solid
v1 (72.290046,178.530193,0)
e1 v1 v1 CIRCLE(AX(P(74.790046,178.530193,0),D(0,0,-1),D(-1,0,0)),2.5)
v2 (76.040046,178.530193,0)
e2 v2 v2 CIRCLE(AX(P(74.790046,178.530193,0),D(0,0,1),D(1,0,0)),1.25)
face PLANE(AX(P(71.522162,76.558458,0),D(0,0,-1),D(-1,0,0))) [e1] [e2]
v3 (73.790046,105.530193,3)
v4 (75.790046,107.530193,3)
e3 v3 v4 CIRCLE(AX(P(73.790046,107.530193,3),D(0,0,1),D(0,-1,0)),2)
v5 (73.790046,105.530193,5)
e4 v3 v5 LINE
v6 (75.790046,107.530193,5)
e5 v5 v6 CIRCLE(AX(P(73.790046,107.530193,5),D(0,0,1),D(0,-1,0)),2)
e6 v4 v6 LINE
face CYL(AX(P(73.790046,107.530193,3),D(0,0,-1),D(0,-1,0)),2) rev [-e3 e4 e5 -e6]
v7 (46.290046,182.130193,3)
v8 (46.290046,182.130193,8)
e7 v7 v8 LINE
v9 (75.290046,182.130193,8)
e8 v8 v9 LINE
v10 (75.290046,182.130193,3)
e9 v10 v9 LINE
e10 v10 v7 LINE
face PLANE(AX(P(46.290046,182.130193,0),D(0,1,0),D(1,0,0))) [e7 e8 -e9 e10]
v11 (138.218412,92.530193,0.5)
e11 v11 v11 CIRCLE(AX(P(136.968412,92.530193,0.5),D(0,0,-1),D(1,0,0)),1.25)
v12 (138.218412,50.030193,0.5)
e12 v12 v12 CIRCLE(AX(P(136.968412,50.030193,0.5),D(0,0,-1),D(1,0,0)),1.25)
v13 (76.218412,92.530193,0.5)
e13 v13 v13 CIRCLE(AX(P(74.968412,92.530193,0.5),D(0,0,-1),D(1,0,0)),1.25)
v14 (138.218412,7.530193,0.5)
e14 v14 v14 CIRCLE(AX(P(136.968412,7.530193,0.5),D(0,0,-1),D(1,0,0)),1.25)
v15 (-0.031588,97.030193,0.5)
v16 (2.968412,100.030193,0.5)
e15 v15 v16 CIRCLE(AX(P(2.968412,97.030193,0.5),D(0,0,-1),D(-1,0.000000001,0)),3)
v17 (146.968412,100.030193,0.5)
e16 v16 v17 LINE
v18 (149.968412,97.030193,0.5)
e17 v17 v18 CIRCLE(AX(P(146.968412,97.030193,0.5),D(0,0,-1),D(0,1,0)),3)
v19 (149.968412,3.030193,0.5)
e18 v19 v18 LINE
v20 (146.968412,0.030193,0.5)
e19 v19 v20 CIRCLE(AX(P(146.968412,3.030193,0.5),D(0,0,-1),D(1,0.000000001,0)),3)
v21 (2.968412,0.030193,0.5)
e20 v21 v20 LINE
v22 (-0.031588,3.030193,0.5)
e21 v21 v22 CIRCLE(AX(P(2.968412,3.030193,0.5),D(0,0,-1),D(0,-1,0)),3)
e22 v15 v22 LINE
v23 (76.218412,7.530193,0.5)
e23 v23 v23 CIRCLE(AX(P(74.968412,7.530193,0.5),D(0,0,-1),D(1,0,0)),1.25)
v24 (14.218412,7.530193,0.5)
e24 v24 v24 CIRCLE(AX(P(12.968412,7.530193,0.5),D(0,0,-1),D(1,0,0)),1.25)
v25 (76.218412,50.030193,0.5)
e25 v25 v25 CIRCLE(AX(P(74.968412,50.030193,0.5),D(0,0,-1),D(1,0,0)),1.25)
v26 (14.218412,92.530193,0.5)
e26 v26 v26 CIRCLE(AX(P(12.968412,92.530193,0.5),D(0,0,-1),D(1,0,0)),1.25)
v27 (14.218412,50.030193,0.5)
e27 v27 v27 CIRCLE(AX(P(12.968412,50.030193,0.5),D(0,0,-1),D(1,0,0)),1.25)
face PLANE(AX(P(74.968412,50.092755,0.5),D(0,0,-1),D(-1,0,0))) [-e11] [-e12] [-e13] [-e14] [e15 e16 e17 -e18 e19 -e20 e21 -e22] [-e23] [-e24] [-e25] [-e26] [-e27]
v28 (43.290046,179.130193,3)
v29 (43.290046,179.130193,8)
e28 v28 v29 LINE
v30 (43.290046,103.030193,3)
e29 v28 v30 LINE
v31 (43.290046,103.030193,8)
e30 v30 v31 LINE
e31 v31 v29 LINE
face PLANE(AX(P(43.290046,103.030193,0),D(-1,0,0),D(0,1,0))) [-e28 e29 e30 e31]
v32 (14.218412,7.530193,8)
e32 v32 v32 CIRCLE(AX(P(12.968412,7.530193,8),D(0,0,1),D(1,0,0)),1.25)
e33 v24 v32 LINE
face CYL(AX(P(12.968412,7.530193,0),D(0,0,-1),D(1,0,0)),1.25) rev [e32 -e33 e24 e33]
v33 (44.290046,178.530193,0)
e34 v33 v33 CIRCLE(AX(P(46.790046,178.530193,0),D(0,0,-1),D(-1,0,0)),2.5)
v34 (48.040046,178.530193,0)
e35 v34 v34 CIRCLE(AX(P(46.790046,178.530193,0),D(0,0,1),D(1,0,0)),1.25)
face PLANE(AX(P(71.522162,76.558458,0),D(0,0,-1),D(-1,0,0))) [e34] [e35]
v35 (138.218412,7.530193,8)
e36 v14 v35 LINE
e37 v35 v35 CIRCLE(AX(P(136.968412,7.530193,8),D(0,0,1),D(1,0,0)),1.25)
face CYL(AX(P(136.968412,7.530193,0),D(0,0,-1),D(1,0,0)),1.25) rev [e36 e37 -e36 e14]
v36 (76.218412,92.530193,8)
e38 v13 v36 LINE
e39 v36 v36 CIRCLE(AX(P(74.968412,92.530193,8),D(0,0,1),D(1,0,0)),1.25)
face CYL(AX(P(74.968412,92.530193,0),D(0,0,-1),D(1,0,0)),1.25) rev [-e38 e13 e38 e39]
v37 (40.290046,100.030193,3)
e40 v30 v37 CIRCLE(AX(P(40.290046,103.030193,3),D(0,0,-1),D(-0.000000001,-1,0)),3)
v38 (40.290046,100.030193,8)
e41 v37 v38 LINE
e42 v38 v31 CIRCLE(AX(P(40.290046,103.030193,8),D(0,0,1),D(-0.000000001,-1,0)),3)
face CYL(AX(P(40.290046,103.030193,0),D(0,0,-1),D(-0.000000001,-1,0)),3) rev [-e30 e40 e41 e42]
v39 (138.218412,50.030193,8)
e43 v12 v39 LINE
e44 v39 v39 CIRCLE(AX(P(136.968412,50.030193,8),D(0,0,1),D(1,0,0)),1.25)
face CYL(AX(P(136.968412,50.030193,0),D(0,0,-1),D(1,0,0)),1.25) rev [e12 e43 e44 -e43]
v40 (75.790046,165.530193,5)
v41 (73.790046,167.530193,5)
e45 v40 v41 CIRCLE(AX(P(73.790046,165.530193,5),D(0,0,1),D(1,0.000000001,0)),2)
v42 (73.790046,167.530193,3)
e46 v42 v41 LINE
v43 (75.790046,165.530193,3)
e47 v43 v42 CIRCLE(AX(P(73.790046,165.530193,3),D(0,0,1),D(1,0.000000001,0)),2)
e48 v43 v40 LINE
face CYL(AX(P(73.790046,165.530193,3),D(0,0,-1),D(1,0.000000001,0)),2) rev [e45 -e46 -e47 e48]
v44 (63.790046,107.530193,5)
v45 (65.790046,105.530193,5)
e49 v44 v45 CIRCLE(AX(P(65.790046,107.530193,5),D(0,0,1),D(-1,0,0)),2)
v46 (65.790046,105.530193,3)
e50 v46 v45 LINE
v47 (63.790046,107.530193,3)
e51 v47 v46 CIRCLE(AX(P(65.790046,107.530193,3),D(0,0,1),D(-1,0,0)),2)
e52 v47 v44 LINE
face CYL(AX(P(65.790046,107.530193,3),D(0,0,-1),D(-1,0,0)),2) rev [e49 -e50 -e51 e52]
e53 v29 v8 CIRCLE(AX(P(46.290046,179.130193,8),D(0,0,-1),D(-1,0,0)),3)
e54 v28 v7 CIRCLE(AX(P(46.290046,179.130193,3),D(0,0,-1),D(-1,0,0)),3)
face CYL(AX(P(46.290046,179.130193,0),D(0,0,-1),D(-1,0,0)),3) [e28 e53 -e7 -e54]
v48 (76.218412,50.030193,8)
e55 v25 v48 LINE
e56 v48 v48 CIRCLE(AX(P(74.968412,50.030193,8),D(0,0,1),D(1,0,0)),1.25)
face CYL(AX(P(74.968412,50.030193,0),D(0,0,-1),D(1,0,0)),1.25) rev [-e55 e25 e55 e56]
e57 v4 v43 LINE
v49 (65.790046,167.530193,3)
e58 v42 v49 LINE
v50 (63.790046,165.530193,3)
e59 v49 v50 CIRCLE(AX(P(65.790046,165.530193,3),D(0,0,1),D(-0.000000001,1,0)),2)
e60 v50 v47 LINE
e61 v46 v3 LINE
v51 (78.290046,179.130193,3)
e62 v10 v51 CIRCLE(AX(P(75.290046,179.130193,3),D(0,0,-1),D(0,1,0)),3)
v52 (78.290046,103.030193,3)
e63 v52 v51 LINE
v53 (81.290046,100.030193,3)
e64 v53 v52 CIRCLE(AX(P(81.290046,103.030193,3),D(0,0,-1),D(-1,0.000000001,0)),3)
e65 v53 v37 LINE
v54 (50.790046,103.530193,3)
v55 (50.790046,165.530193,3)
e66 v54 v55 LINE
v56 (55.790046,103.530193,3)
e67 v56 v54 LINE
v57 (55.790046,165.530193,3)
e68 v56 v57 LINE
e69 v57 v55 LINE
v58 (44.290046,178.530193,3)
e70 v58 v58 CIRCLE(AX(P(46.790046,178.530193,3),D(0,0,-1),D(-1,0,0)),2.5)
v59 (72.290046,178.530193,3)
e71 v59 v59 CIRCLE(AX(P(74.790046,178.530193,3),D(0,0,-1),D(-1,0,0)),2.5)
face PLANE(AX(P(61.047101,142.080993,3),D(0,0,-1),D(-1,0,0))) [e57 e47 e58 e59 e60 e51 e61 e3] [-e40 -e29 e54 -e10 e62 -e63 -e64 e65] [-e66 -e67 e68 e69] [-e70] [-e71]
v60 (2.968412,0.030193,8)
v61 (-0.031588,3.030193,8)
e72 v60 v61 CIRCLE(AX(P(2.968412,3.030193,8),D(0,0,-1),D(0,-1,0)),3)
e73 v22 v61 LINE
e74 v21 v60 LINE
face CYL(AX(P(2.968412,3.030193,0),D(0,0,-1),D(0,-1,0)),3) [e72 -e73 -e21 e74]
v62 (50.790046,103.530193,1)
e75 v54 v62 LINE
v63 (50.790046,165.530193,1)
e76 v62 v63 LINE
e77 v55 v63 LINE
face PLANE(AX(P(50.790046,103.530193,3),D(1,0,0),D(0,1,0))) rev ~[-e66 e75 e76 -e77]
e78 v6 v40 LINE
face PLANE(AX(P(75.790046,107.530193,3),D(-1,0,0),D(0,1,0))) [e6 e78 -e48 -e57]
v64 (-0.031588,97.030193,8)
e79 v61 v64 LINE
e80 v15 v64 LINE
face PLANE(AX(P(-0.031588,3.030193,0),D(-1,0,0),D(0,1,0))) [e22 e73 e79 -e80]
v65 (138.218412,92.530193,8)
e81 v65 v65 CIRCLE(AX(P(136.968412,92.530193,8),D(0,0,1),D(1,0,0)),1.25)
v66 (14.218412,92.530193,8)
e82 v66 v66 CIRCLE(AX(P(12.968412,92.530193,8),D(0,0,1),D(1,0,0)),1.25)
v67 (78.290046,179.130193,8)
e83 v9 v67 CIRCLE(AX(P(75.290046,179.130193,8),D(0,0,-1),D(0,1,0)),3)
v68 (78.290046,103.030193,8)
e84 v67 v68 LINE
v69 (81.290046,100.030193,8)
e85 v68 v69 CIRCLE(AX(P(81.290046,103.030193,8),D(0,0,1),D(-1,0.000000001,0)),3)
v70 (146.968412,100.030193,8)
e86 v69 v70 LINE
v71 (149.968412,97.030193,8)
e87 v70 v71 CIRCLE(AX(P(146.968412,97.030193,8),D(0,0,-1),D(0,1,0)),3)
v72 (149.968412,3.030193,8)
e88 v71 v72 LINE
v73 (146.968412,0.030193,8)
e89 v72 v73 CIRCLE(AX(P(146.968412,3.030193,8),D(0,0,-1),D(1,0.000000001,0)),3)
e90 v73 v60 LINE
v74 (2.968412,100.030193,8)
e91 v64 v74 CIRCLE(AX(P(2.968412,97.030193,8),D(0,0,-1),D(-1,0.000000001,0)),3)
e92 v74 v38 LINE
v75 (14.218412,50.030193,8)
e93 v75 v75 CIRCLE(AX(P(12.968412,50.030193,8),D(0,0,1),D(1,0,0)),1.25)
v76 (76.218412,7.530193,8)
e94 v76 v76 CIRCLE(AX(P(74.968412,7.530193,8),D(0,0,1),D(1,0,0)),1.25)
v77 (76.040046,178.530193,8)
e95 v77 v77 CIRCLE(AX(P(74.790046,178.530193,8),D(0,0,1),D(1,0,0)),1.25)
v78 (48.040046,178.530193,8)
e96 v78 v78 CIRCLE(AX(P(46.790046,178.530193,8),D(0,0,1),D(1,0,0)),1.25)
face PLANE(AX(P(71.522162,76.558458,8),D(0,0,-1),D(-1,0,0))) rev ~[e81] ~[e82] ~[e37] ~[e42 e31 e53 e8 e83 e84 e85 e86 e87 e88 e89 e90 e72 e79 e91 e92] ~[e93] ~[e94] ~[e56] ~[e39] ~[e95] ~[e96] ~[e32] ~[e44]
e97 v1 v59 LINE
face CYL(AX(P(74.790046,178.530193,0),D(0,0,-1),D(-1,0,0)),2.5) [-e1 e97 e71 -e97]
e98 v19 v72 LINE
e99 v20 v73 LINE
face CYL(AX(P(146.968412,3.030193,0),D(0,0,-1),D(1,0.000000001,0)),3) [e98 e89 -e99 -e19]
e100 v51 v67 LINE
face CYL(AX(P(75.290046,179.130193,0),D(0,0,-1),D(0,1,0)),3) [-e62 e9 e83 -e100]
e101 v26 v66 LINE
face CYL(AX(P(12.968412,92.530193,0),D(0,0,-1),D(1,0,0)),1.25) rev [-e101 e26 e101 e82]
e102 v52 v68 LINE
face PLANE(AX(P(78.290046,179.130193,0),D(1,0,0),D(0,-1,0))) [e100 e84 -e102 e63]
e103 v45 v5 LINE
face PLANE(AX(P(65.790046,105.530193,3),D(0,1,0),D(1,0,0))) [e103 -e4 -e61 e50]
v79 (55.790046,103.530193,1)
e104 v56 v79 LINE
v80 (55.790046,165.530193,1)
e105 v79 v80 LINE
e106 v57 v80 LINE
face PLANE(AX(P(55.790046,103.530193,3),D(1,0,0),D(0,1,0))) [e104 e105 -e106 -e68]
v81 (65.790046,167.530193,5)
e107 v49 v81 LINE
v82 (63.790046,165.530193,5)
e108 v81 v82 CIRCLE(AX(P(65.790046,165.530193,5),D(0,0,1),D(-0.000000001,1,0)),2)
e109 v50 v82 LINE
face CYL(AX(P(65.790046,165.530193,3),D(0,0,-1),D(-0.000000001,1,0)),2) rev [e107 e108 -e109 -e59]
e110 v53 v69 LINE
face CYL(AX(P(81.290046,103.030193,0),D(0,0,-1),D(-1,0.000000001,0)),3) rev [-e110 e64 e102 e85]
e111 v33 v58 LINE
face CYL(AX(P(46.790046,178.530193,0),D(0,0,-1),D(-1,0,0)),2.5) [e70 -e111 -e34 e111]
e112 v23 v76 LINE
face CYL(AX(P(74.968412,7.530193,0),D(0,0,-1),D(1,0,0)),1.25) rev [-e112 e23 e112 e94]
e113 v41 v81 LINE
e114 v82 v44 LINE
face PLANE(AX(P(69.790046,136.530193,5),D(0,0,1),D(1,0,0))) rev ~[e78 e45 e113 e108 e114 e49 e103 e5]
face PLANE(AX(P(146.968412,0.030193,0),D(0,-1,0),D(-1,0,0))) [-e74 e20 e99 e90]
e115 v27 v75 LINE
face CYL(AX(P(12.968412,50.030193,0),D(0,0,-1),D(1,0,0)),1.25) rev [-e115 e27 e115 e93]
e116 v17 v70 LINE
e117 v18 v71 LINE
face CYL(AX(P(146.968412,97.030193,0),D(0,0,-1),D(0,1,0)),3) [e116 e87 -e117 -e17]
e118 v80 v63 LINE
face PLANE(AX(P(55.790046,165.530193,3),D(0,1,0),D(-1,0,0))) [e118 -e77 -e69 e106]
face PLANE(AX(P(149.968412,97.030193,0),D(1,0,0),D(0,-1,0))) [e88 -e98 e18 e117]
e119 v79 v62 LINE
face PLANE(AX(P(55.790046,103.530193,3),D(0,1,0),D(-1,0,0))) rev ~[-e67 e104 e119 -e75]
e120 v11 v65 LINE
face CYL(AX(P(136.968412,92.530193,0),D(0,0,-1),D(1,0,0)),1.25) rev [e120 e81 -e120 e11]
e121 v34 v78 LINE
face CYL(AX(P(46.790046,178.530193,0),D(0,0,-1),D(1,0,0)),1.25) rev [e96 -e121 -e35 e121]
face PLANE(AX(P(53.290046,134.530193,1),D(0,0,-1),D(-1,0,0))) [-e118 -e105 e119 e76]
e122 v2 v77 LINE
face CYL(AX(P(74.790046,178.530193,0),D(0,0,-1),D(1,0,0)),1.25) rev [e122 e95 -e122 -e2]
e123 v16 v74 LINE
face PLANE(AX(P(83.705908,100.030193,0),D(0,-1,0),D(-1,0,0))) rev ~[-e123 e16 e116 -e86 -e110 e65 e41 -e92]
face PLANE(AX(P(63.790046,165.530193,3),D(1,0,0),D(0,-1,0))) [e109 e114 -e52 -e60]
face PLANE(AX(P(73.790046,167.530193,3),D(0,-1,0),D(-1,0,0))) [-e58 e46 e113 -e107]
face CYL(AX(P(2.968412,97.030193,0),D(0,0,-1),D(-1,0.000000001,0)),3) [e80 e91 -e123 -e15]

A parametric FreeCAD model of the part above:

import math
import FreeCAD as App
import Part
import Sketcher
from FreeCAD import Vector


def add_polygon(sketch, points):
    """Adds a closed chain of lines whose ends are joined by coincident constraints."""
    first, n = sketch.GeometryCount, len(points)
    for a, b in zip(points, points[1:] + points[:1]):
        sketch.addGeometry(Part.LineSegment(App.Vector(*a, 0), App.Vector(*b, 0)), False)
    for i in range(n):
        sketch.addConstraint(Sketcher.Constraint("Coincident", first + i, 2, first + (i + 1) % n, 1))

doc = App.newDocument("Part")
body = doc.addObject("PartDesign::Body", "Body")

sketch1 = body.newObject("Sketcher::SketchObject", "Sketch")
sketch1.AttachmentSupport = (doc.getObject("XY_Plane"), [""])
sketch1.MapMode = "FlatFace"
sketch1.addGeometry([
    Part.LineSegment(Vector(43.3, 179.1, 0), Vector(43.3, 103, 0)),
    Part.ArcOfCircle(Part.Circle(Vector(40.3, 103, 0), Vector(0, 0, 1), 3), math.radians(-90), math.radians(0)),
    Part.LineSegment(Vector(40.3, 100, 0), Vector(3, 100, 0)),
    Part.ArcOfCircle(Part.Circle(Vector(3, 97, 0), Vector(0, 0, 1), 3), math.radians(90), math.radians(180)),
    Part.LineSegment(Vector(0, 97, 0), Vector(0, 3, 0)),
    Part.ArcOfCircle(Part.Circle(Vector(3, 3, 0), Vector(0, 0, 1), 3), math.radians(180), math.radians(270)),
    Part.LineSegment(Vector(3, 0, 0), Vector(147, 0, 0)),
    Part.ArcOfCircle(Part.Circle(Vector(147, 3, 0), Vector(0, 0, 1), 3), math.radians(-90), math.radians(0)),
    Part.LineSegment(Vector(150, 3, 0), Vector(150, 97, 0)),
    Part.ArcOfCircle(Part.Circle(Vector(147, 97, 0), Vector(0, 0, 1), 3), math.radians(0), math.radians(90)),
    Part.LineSegment(Vector(147, 100, 0), Vector(81.3, 100, 0)),
    Part.ArcOfCircle(Part.Circle(Vector(81.3, 103, 0), Vector(0, 0, 1), 3), math.radians(180), math.radians(270)),
    Part.LineSegment(Vector(78.3, 103, 0), Vector(78.3, 179.1, 0)),
    Part.ArcOfCircle(Part.Circle(Vector(75.3, 179.1, 0), Vector(0, 0, 1), 3), math.radians(0), math.radians(90)),
    Part.LineSegment(Vector(75.3, 182.1, 0), Vector(46.3, 182.1, 0)),
    Part.ArcOfCircle(Part.Circle(Vector(46.3, 179.1, 0), Vector(0, 0, 1), 3), math.radians(90), math.radians(180)),
    Part.Circle(Vector(137, 7.5, 0), Vector(0, 0, 1), 1.2),
    Part.Circle(Vector(75, 7.5, 0), Vector(0, 0, 1), 1.2),
    Part.Circle(Vector(137, 50, 0), Vector(0, 0, 1), 1.2),
    Part.Circle(Vector(137, 92.5, 0), Vector(0, 0, 1), 1.2),
    Part.Circle(Vector(75, 50, 0), Vector(0, 0, 1), 1.2),
    Part.Circle(Vector(75, 92.5, 0), Vector(0, 0, 1), 1.2),
    Part.Circle(Vector(13, 7.5, 0), Vector(0, 0, 1), 1.2),
    Part.Circle(Vector(13, 50, 0), Vector(0, 0, 1), 1.2),
    Part.Circle(Vector(13, 92.5, 0), Vector(0, 0, 1), 1.2),
    Part.Circle(Vector(74.8, 178.5, 0), Vector(0, 0, 1), 1.2),
    Part.Circle(Vector(46.8, 178.5, 0), Vector(0, 0, 1), 1.2),
], False)
sketch1.addConstraint([
    Sketcher.Constraint("Tangent", 0, 2, 1, 2),
    Sketcher.Constraint("Tangent", 1, 1, 2, 1),
    Sketcher.Constraint("Tangent", 2, 2, 3, 1),
    Sketcher.Constraint("Tangent", 3, 2, 4, 1),
    Sketcher.Constraint("Tangent", 4, 2, 5, 1),
    Sketcher.Constraint("Tangent", 5, 2, 6, 1),
    Sketcher.Constraint("Tangent", 6, 2, 7, 1),
    Sketcher.Constraint("Tangent", 7, 2, 8, 1),
    Sketcher.Constraint("Tangent", 8, 2, 9, 1),
    Sketcher.Constraint("Tangent", 9, 2, 10, 1),
    Sketcher.Constraint("Tangent", 10, 2, 11, 2),
    Sketcher.Constraint("Tangent", 11, 1, 12, 1),
    Sketcher.Constraint("Tangent", 12, 2, 13, 1),
    Sketcher.Constraint("Tangent", 13, 2, 14, 1),
    Sketcher.Constraint("Tangent", 14, 2, 15, 1),
    Sketcher.Constraint("Tangent", 15, 2, 0, 1),
    Sketcher.Constraint("Vertical", 0),
    Sketcher.Constraint("Horizontal", 2),
    Sketcher.Constraint("Vertical", 4),
    Sketcher.Constraint("Horizontal", 6),
    Sketcher.Constraint("Vertical", 8),
    Sketcher.Constraint("Horizontal", 10),
    Sketcher.Constraint("Vertical", 12),
    Sketcher.Constraint("Horizontal", 14),
    Sketcher.Constraint("Equal", 1, 3),
    Sketcher.Constraint("Equal", 3, 5),
    Sketcher.Constraint("Equal", 5, 7),
    Sketcher.Constraint("Equal", 7, 9),
    Sketcher.Constraint("Equal", 9, 11),
    Sketcher.Constraint("Equal", 11, 13),
    Sketcher.Constraint("Equal", 13, 15),
    Sketcher.Constraint("Equal", 16, 17),
    Sketcher.Constraint("Equal", 17, 18),
    Sketcher.Constraint("Equal", 18, 19),
    Sketcher.Constraint("Equal", 19, 20),
    Sketcher.Constraint("Equal", 20, 21),
    Sketcher.Constraint("Equal", 21, 22),
    Sketcher.Constraint("Equal", 22, 23),
    Sketcher.Constraint("Equal", 23, 24),
    Sketcher.Constraint("Equal", 24, 25),
    Sketcher.Constraint("Equal", 25, 26),
    Sketcher.Constraint("Horizontal", 3, 3, 9, 3),
    Sketcher.Constraint("Horizontal", 16, 3, 17, 3),
    Sketcher.Constraint("Horizontal", 18, 3, 20, 3),
    Sketcher.Constraint("Horizontal", 19, 3, 21, 3),
    Sketcher.Constraint("Horizontal", 17, 3, 22, 3),
    Sketcher.Constraint("Horizontal", 20, 3, 23, 3),
    Sketcher.Constraint("Horizontal", 21, 3, 24, 3),
    Sketcher.Constraint("Horizontal", 25, 3, 26, 3),
    Sketcher.Constraint("Vertical", 16, 3, 18, 3),
    Sketcher.Constraint("Vertical", 18, 3, 19, 3),
    Sketcher.Constraint("Vertical", 17, 3, 20, 3),
    Sketcher.Constraint("Vertical", 20, 3, 21, 3),
    Sketcher.Constraint("Vertical", 22, 3, 23, 3),
    Sketcher.Constraint("Vertical", 23, 3, 24, 3),
    Sketcher.Constraint("Radius", 1, 3.0),
    Sketcher.Constraint("Diameter", 16, 2.5),
    Sketcher.Constraint("DistanceX", 6, 1, 6, 2, 144.0),
    Sketcher.Constraint("DistanceX", 14, 2, 14, 1, 29.0),
    Sketcher.Constraint("DistanceY", 4, 2, 4, 1, 94.0),
    Sketcher.Constraint("DistanceY", 0, 2, 0, 1, 76.1),
    Sketcher.Constraint("DistanceX", 16, 3, 7, 3, 10.0),
    Sketcher.Constraint("DistanceX", 17, 3, 16, 3, 62.0),
    Sketcher.Constraint("DistanceY", 18, 3, 9, 3, 47.0),
    Sketcher.Constraint("DistanceY", 16, 3, 19, 3, 85.0),
    Sketcher.Constraint("DistanceX", 5, 3, 22, 3, 10.0),
    Sketcher.Constraint("DistanceY", 21, 3, 25, 3, 86.0),
    Sketcher.Constraint("DistanceX", 26, 3, 25, 3, 28.0),
    Sketcher.Constraint("DistanceY", 7, 3, 16, 3, 4.5),
    Sketcher.Constraint("DistanceX", 25, 3, 13, 3, 0.5),
    Sketcher.Constraint("DistanceX", 2, 2, 2, 1, 37.321634),
    Sketcher.Constraint("DistanceX", -1, 1, 3, 3, 2.968412),
    Sketcher.Constraint("DistanceY", -1, 1, 1, 3, 103.030193),
])
pad1 = body.newObject("PartDesign::Pad", "Pad")
pad1.Profile = sketch1
pad1.Length = 8

sketch2 = body.newObject("Sketcher::SketchObject", "Sketch001")
sketch2.AttachmentSupport = (doc.getObject("XY_Plane"), [""])
sketch2.MapMode = "FlatFace"
add_polygon(sketch2, [(83.7, 184.1), (83.7, 100), (38.4, 100), (38.4, 184.1)])
sketch2.addGeometry(Part.Circle(Vector(74.8, 178.5, 0), Vector(0, 0, 1), 2.5), False)
sketch2.addGeometry(Part.Circle(Vector(46.8, 178.5, 0), Vector(0, 0, 1), 2.5), False)
sketch2.addConstraint([
    Sketcher.Constraint("Vertical", 0),
    Sketcher.Constraint("Horizontal", 1),
    Sketcher.Constraint("Vertical", 2),
    Sketcher.Constraint("Horizontal", 3),
    Sketcher.Constraint("Equal", 4, 5),
    Sketcher.Constraint("Horizontal", 4, 3, 5, 3),
    Sketcher.Constraint("Diameter", 4, 5.0),
    Sketcher.Constraint("DistanceX", 5, 3, 4, 3, 28.0),
    Sketcher.Constraint("DistanceY", 0, 2, 4, 3, 78.5),
    Sketcher.Constraint("DistanceY", 0, 2, 0, 1, 84.101601),
    Sketcher.Constraint("DistanceX", 1, 2, 1, 1, 45.317615),
    Sketcher.Constraint("DistanceX", -1, 1, 0, 2, 83.705908),
    Sketcher.Constraint("DistanceX", -1, 1, 4, 3, 74.790046),
    Sketcher.Constraint("DistanceY", -1, 1, 4, 3, 178.530193),
])
pocket1 = body.newObject("PartDesign::Pocket", "Pocket")
pocket1.Profile = sketch2
pocket1.Length = 3
pocket1.Reversed = True

sketch3 = body.newObject("Sketcher::SketchObject", "Sketch002")
sketch3.AttachmentSupport = (doc.getObject("XY_Plane"), [""])
sketch3.MapMode = "FlatFace"
sketch3.AttachmentOffset = App.Placement(Vector(0, 0, 3), App.Rotation())
add_polygon(sketch3, [(56, 166), (56, 104), (51, 104), (51, 166)])
sketch3.addConstraint([
    Sketcher.Constraint("Vertical", 0),
    Sketcher.Constraint("Horizontal", 1),
    Sketcher.Constraint("Vertical", 2),
    Sketcher.Constraint("Horizontal", 3),
    Sketcher.Constraint("DistanceX", 1, 2, 1, 1, 5.0),
    Sketcher.Constraint("DistanceY", 0, 2, 0, 1, 62.0),
    Sketcher.Constraint("DistanceX", -1, 1, 0, 2, 55.790046),
    Sketcher.Constraint("DistanceY", -1, 1, 0, 2, 103.530193),
])
pad2 = body.newObject("PartDesign::Pad", "Pad001")
pad2.Profile = sketch3
pad2.Length = 2
pad2.Reversed = True

sketch4 = body.newObject("Sketcher::SketchObject", "Sketch003")
sketch4.AttachmentSupport = (doc.getObject("XY_Plane"), [""])
sketch4.MapMode = "FlatFace"
sketch4.AttachmentOffset = App.Placement(Vector(0, 0, 3), App.Rotation())
sketch4.addGeometry([
    Part.LineSegment(Vector(65.8, 167.5, 0), Vector(73.8, 167.5, 0)),
    Part.ArcOfCircle(Part.Circle(Vector(73.8, 165.5, 0), Vector(0, 0, 1), 2), math.radians(0), math.radians(90)),
    Part.LineSegment(Vector(75.8, 165.5, 0), Vector(75.8, 107.5, 0)),
    Part.ArcOfCircle(Part.Circle(Vector(73.8, 107.5, 0), Vector(0, 0, 1), 2), math.radians(-90), math.radians(0)),
    Part.LineSegment(Vector(73.8, 105.5, 0), Vector(65.8, 105.5, 0)),
    Part.ArcOfCircle(Part.Circle(Vector(65.8, 107.5, 0), Vector(0, 0, 1), 2), math.radians(180), math.radians(270)),
    Part.LineSegment(Vector(63.8, 107.5, 0), Vector(63.8, 165.5, 0)),
    Part.ArcOfCircle(Part.Circle(Vector(65.8, 165.5, 0), Vector(0, 0, 1), 2), math.radians(90), math.radians(180)),
], False)
sketch4.addConstraint([
    Sketcher.Constraint("Tangent", 0, 2, 1, 2),
    Sketcher.Constraint("Tangent", 1, 1, 2, 1),
    Sketcher.Constraint("Tangent", 2, 2, 3, 2),
    Sketcher.Constraint("Tangent", 3, 1, 4, 1),
    Sketcher.Constraint("Tangent", 4, 2, 5, 2),
    Sketcher.Constraint("Tangent", 5, 1, 6, 1),
    Sketcher.Constraint("Tangent", 6, 2, 7, 2),
    Sketcher.Constraint("Tangent", 7, 1, 0, 1),
    Sketcher.Constraint("Horizontal", 0),
    Sketcher.Constraint("Vertical", 2),
    Sketcher.Constraint("Horizontal", 4),
    Sketcher.Constraint("Vertical", 6),
    Sketcher.Constraint("Equal", 1, 3),
    Sketcher.Constraint("Equal", 3, 5),
    Sketcher.Constraint("Equal", 5, 7),
    Sketcher.Constraint("Radius", 1, 2.0),
    Sketcher.Constraint("DistanceX", 0, 1, 0, 2, 8.0),
    Sketcher.Constraint("DistanceY", 2, 2, 2, 1, 58.0),
    Sketcher.Constraint("DistanceX", -1, 1, 1, 3, 73.790046),
    Sketcher.Constraint("DistanceY", -1, 1, 1, 3, 165.530193),
])
pocket2 = body.newObject("PartDesign::Pocket", "Pocket001")
pocket2.Profile = sketch4
pocket2.Length = 2
pocket2.Reversed = True

sketch5 = body.newObject("Sketcher::SketchObject", "Sketch004")
sketch5.AttachmentSupport = (doc.getObject("XY_Plane"), [""])
sketch5.MapMode = "FlatFace"
add_polygon(sketch5, [(152, 102), (152, -2), (-2, -2), (-2, 102)])
sketch5.addConstraint([
    Sketcher.Constraint("Vertical", 0),
    Sketcher.Constraint("Horizontal", 1),
    Sketcher.Constraint("Vertical", 2),
    Sketcher.Constraint("Horizontal", 3),
    Sketcher.Constraint("DistanceY", -1, 1, 2, 2, 101.719999),
    Sketcher.Constraint("DistanceX", 1, 2, -1, 1, 2.412001),
    Sketcher.Constraint("DistanceX", 1, 2, 1, 1, 154.760825),
    Sketcher.Constraint("DistanceY", 0, 2, 0, 1, 103.254488),
])
pocket3 = body.newObject("PartDesign::Pocket", "Pocket002")
pocket3.Profile = sketch5
pocket3.Length = 0.5
pocket3.Reversed = True

doc.recompute()
